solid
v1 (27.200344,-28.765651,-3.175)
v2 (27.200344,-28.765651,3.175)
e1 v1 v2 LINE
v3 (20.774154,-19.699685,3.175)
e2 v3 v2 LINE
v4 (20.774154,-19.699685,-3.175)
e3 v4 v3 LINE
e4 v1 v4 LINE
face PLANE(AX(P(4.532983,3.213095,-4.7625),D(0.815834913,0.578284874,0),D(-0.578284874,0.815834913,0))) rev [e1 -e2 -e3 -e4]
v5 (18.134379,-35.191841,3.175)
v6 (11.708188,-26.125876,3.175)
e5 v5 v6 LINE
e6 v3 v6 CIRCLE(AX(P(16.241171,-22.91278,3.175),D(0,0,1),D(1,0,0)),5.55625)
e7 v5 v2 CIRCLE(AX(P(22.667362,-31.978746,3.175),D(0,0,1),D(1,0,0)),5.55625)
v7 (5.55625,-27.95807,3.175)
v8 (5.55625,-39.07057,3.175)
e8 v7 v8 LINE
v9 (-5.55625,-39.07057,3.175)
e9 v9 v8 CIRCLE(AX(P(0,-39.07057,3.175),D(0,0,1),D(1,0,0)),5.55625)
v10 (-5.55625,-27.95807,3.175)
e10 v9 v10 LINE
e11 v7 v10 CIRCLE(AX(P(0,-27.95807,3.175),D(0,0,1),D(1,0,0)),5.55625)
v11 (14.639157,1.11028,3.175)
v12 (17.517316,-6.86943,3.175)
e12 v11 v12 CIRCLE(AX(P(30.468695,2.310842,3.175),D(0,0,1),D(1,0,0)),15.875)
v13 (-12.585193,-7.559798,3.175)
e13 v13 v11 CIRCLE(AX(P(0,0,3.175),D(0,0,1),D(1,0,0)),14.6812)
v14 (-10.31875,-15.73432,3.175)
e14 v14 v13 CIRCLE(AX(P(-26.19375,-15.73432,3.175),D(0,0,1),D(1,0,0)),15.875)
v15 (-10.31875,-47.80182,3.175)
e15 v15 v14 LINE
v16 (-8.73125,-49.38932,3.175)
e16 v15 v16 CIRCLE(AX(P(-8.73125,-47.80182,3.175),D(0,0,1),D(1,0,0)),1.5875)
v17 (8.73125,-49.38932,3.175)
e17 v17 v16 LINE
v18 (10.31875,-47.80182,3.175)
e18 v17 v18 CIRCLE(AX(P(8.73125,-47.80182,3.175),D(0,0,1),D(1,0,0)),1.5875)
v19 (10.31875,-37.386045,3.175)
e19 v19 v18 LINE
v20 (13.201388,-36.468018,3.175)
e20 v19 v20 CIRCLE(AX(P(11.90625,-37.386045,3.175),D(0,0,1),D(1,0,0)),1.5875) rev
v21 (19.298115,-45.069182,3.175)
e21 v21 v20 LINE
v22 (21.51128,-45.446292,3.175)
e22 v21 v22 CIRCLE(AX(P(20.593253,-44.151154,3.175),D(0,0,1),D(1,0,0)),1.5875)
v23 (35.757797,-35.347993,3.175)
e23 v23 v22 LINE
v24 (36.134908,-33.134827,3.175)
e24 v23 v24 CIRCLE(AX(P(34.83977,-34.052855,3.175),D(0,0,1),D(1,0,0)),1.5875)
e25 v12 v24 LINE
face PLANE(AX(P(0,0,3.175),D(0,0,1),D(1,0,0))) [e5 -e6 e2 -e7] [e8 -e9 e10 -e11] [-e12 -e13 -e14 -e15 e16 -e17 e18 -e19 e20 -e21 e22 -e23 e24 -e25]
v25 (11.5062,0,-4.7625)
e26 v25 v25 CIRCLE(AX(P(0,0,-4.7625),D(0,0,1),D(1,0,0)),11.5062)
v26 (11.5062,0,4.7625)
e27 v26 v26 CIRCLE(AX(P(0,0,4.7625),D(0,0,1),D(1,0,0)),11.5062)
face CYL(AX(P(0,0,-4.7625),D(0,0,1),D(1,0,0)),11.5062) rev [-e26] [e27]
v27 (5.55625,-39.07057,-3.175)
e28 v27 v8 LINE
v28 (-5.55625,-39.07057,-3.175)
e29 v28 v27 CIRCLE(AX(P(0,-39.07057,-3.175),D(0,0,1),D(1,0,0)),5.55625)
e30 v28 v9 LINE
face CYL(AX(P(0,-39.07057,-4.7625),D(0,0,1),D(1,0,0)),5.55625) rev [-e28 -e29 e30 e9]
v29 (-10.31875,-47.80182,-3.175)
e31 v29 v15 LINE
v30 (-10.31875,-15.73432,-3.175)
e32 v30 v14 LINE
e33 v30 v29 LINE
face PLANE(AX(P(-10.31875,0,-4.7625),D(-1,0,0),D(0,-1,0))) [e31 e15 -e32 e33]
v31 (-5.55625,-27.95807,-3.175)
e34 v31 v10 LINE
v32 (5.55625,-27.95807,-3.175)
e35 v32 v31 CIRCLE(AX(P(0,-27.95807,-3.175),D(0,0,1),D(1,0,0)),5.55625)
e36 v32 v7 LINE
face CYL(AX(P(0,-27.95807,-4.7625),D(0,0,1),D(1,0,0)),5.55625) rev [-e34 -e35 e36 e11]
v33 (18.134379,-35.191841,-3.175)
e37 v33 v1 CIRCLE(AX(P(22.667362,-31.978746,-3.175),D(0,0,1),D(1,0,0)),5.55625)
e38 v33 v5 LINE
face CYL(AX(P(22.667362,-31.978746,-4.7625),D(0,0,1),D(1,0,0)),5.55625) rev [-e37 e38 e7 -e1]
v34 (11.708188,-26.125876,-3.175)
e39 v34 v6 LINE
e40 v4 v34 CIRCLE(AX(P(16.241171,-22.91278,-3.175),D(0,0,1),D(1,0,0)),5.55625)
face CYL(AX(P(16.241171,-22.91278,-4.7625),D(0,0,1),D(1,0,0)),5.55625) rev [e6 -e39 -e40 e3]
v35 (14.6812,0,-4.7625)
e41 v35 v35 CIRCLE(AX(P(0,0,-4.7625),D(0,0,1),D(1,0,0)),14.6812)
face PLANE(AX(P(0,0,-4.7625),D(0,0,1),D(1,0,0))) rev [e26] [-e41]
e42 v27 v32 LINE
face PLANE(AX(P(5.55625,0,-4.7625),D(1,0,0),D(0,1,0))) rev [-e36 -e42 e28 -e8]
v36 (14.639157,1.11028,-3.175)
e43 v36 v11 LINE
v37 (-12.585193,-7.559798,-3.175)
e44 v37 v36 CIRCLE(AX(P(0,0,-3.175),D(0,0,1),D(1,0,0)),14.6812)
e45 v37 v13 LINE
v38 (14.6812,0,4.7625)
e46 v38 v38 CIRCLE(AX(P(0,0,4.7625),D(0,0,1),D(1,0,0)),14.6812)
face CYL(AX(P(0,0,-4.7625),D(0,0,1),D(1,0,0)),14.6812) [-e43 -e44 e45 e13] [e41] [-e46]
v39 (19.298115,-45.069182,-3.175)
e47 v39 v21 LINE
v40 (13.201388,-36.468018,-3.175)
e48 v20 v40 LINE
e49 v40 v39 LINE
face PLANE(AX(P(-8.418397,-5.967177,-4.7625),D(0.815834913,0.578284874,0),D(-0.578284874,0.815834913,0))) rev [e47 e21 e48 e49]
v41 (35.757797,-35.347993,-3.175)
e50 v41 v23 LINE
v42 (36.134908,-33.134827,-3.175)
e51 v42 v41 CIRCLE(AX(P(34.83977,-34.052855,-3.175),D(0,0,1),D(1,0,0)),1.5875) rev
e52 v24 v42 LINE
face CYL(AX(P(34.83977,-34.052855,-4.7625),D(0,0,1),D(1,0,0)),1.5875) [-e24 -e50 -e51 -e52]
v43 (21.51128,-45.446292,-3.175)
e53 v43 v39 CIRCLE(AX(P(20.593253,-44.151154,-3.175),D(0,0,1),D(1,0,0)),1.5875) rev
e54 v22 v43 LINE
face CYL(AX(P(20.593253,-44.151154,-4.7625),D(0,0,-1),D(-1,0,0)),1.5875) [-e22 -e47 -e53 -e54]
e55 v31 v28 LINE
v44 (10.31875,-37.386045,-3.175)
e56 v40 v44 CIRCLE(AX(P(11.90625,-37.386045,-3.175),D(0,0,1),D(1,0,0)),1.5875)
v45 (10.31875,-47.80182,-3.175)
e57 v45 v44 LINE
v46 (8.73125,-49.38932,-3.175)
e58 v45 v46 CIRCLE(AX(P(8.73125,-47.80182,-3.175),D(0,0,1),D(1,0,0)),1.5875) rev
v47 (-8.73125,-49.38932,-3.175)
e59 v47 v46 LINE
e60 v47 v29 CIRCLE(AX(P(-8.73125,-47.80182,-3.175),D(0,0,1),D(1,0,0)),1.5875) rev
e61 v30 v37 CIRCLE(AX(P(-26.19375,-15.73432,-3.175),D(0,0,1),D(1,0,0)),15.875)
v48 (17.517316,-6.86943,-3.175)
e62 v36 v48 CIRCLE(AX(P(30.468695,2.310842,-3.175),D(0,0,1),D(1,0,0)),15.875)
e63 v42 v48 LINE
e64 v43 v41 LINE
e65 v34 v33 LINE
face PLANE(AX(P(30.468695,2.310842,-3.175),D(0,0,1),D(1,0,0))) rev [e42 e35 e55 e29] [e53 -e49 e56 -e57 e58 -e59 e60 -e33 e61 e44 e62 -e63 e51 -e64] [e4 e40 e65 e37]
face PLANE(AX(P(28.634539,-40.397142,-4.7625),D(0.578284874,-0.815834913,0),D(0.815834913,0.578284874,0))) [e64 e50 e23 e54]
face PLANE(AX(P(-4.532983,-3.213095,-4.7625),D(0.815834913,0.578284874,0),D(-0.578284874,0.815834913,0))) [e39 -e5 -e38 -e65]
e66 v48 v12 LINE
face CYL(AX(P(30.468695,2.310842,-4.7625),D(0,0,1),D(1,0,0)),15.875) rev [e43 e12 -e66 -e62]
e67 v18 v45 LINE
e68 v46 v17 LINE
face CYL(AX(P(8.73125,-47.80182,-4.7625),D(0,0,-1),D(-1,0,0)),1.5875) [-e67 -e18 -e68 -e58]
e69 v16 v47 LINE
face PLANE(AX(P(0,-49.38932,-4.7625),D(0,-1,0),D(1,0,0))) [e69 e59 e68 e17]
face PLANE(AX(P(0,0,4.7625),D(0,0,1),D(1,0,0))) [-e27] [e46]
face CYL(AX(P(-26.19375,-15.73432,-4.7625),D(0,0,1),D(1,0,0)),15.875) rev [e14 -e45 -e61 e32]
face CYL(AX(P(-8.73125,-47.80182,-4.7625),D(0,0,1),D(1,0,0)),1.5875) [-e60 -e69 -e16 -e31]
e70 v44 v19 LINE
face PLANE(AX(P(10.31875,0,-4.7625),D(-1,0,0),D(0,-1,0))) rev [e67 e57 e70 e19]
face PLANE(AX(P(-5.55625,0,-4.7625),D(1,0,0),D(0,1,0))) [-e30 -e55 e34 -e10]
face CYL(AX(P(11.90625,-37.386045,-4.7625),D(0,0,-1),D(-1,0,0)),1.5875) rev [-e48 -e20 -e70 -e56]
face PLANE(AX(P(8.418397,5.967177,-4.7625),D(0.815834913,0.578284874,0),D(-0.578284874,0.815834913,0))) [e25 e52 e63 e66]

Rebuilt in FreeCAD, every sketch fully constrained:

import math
import FreeCAD as App
import Part
import Sketcher
from FreeCAD import Vector
Q = App.Units.Quantity


def edges_at(feature, points):
    """Names of the edges that pass closest to the given points."""
    edges = feature.Shape.Edges
    near = lambda p: min(range(len(edges)), key=lambda i: edges[i].distToShape(Part.Vertex(*p))[0])
    return sorted({f"Edge{near(p) + 1}" for p in points})

doc = App.newDocument("Part")
body = doc.addObject("PartDesign::Body", "Body")

sketch1 = doc.addObject("Sketcher::SketchObject", "Sketch")
body.addObject(sketch1)
sketch1.AttachmentSupport = (doc.XY_Plane, [""])
sketch1.MapMode = "FlatFace"
sketch1.addGeometry(Part.ArcOfCircle(Part.Circle(Vector(0, 0, 0), Vector(0, 0, 1), 15), math.radians(4), math.radians(211)), False)
sketch1.addGeometry(Part.ArcOfCircle(Part.Circle(Vector(-26, -16, 0), Vector(0, 0, 1), 16), math.radians(0), math.radians(31)), False)
sketch1.addGeometry(Part.LineSegment(Vector(-10, -16, 0), Vector(-10, -49, 0)), False)
sketch1.addGeometry(Part.LineSegment(Vector(-10, -49, 0), Vector(10, -49, 0)), False)
sketch1.addGeometry(Part.LineSegment(Vector(10, -49, 0), Vector(10, -32, 0)), False)
sketch1.addGeometry(Part.LineSegment(Vector(10, -32, 0), Vector(20, -46, 0)), False)
sketch1.addGeometry(Part.LineSegment(Vector(20, -46, 0), Vector(37, -34, 0)), False)
sketch1.addGeometry(Part.LineSegment(Vector(37, -34, 0), Vector(18, -7, 0)), False)
sketch1.addGeometry(Part.ArcOfCircle(Part.Circle(Vector(30, 2, 0), Vector(0, 0, 1), 16), math.radians(-176), math.radians(-145)), False)
sketch1.addGeometry(Part.ArcOfCircle(Part.Circle(Vector(0, -28, 0), Vector(0, 0, 1), 6), math.radians(0), math.radians(180)), False)
sketch1.addGeometry(Part.LineSegment(Vector(6, -28, 0), Vector(6, -39, 0)), False)
sketch1.addGeometry(Part.ArcOfCircle(Part.Circle(Vector(0, -39, 0), Vector(0, 0, 1), 6), math.radians(180), math.radians(360)), False)
sketch1.addGeometry(Part.LineSegment(Vector(-6, -39, 0), Vector(-6, -28, 0)), False)
sketch1.addGeometry(Part.ArcOfCircle(Part.Circle(Vector(16, -23, 0), Vector(0, 0, 1), 6), math.radians(35), math.radians(215)), False)
sketch1.addGeometry(Part.LineSegment(Vector(21, -20, 0), Vector(27, -29, 0)), False)
sketch1.addGeometry(Part.ArcOfCircle(Part.Circle(Vector(23, -32, 0), Vector(0, 0, 1), 6), math.radians(-145), math.radians(35)), False)
sketch1.addGeometry(Part.LineSegment(Vector(18, -35, 0), Vector(12, -26, 0)), False)
sketch1.addGeometry(Part.Circle(Vector(0, 0, 0), Vector(0, 0, 1), 12), False)
sketch1.addConstraint(Sketcher.Constraint("Tangent", 0, 2, 1, 2))
sketch1.addConstraint(Sketcher.Constraint("Tangent", 1, 1, 2, 1))
sketch1.addConstraint(Sketcher.Constraint("Coincident", 2, 2, 3, 1))
sketch1.addConstraint(Sketcher.Constraint("Coincident", 3, 2, 4, 1))
sketch1.addConstraint(Sketcher.Constraint("Coincident", 4, 2, 5, 1))
sketch1.addConstraint(Sketcher.Constraint("Coincident", 5, 2, 6, 1))
sketch1.addConstraint(Sketcher.Constraint("Coincident", 6, 2, 7, 1))
sketch1.addConstraint(Sketcher.Constraint("Tangent", 7, 2, 8, 2))
sketch1.addConstraint(Sketcher.Constraint("Tangent", 8, 1, 0, 1))
sketch1.addConstraint(Sketcher.Constraint("Tangent", 9, 1, 10, 1))
sketch1.addConstraint(Sketcher.Constraint("Tangent", 10, 2, 11, 2))
sketch1.addConstraint(Sketcher.Constraint("Tangent", 11, 1, 12, 1))
sketch1.addConstraint(Sketcher.Constraint("Tangent", 12, 2, 9, 2))
sketch1.addConstraint(Sketcher.Constraint("Tangent", 13, 1, 14, 1))
sketch1.addConstraint(Sketcher.Constraint("Tangent", 14, 2, 15, 2))
sketch1.addConstraint(Sketcher.Constraint("Tangent", 15, 1, 16, 1))
sketch1.addConstraint(Sketcher.Constraint("Tangent", 16, 2, 13, 2))
sketch1.addConstraint(Sketcher.Constraint("Vertical", 2))
sketch1.addConstraint(Sketcher.Constraint("Horizontal", 3))
sketch1.addConstraint(Sketcher.Constraint("Vertical", 4))
sketch1.addConstraint(Sketcher.Constraint("Vertical", 10))
sketch1.addConstraint(Sketcher.Constraint("Vertical", 12))
sketch1.addConstraint(Sketcher.Constraint("Coincident", 0, 3, -1, 1))
sketch1.addConstraint(Sketcher.Constraint("Coincident", 17, 3, -1, 1))
sketch1.addConstraint(Sketcher.Constraint("Equal", 1, 8))
sketch1.addConstraint(Sketcher.Constraint("Equal", 11, 13))
sketch1.addConstraint(Sketcher.Constraint("Equal", 13, 15))
sketch1.addConstraint(Sketcher.Constraint("PointOnObject", 9, 3, -2))
sketch1.addConstraint(Sketcher.Constraint("Perpendicular", 5, 6))
sketch1.addConstraint(Sketcher.Constraint("Perpendicular", 6, 7))
sketch1.addConstraint(Sketcher.Constraint("Parallel", 7, 14))
sketch1.addConstraint(Sketcher.Constraint("Diameter", 17, Q("0.906 in")))
sketch1.addConstraint(Sketcher.Constraint("Radius", 0, Q("0.578 in")))
sketch1.addConstraint(Sketcher.Constraint("Radius", 1, Q("0.625 in")))
sketch1.addConstraint(Sketcher.Constraint("Radius", 9, Q("0.21875 in")))
sketch1.addConstraint(Sketcher.Constraint("Distance", 7, Q("1.33 in")))
sketch1.addConstraint(Sketcher.Constraint("DistanceX", 3, 1, 3, 2, Q("0.8125 in")))
sketch1.addConstraint(Sketcher.Constraint("DistanceY", 2, 2, 2, 1, Q("1.325 in")))
sketch1.addConstraint(Sketcher.Constraint("DistanceY", 10, 2, 10, 1, Q("0.4375 in")))
sketch1.addConstraint(Sketcher.Constraint("Angle", 5, Q("-54.67 deg")))
sketch1.addConstraint(Sketcher.Constraint("Distance", 6, Q("0.8125 in")))
sketch1.addConstraint(Sketcher.Constraint("Distance", 14, Q("0.4375 in")))
sketch1.addConstraint(Sketcher.Constraint("DistanceX", 1, 3, -1, 1, Q("1.03125 in")))
sketch1.addConstraint(Sketcher.Constraint("DistanceY", 2, 2, 11, 3, Q("0.40625 in")))
sketch1.addConstraint(Sketcher.Constraint("DistanceY", 4, 1, 4, 2, 16.988081))
sketch1.addConstraint(Sketcher.Constraint("DistanceX", -1, 1, 13, 3, 16.241171))
sketch1.addConstraint(Sketcher.Constraint("DistanceY", 13, 3, -1, 1, 22.91278))
pad1 = doc.addObject("PartDesign::Pad", "Pad")
body.addObject(pad1)
pad1.Profile = sketch1
pad1.Type = "TwoLengths"
pad1.Length = Q("0.1875 in")
pad1.Length2 = Q("0.1875 in")

sketch2 = doc.addObject("Sketcher::SketchObject", "Sketch001")
body.addObject(sketch2)
sketch2.AttachmentSupport = (doc.XY_Plane, [""])
sketch2.MapMode = "FlatFace"
sketch2.AttachmentOffset = App.Placement(Vector(0, 0, -0.1875 * 25.4), App.Rotation())
sketch2.addGeometry(Part.LineSegment(Vector(-10, -16, 0), Vector(-10, -49, 0)), False)
sketch2.addGeometry(Part.LineSegment(Vector(-10, -49, 0), Vector(10, -49, 0)), False)
sketch2.addGeometry(Part.LineSegment(Vector(10, -49, 0), Vector(10, -32, 0)), False)
sketch2.addGeometry(Part.LineSegment(Vector(10, -32, 0), Vector(20, -46, 0)), False)
sketch2.addGeometry(Part.LineSegment(Vector(20, -46, 0), Vector(37, -34, 0)), False)
sketch2.addGeometry(Part.LineSegment(Vector(37, -34, 0), Vector(18, -7, 0)), False)
sketch2.addGeometry(Part.ArcOfCircle(Part.Circle(Vector(30, 2, 0), Vector(0, 0, 1), 16), math.radians(-176), math.radians(-145)), False)
sketch2.addGeometry(Part.ArcOfCircle(Part.Circle(Vector(0, 0, 0), Vector(0, 0, 1), 15), math.radians(-149), math.radians(4)), False)
sketch2.addGeometry(Part.ArcOfCircle(Part.Circle(Vector(-26, -16, 0), Vector(0, 0, 1), 16), math.radians(0), math.radians(31)), False)
sketch2.addGeometry(Part.ArcOfCircle(Part.Circle(Vector(0, -39, 0), Vector(0, 0, 1), 6), math.radians(180), math.radians(360)), False)
sketch2.addGeometry(Part.LineSegment(Vector(-6, -39, 0), Vector(-6, -28, 0)), False)
sketch2.addGeometry(Part.ArcOfCircle(Part.Circle(Vector(0, -28, 0), Vector(0, 0, 1), 6), math.radians(0), math.radians(180)), False)
sketch2.addGeometry(Part.LineSegment(Vector(6, -28, 0), Vector(6, -39, 0)), False)
sketch2.addGeometry(Part.ArcOfCircle(Part.Circle(Vector(23, -32, 0), Vector(0, 0, 1), 6), math.radians(-145), math.radians(35)), False)
sketch2.addGeometry(Part.LineSegment(Vector(18, -35, 0), Vector(12, -26, 0)), False)
sketch2.addGeometry(Part.ArcOfCircle(Part.Circle(Vector(16, -23, 0), Vector(0, 0, 1), 6), math.radians(35), math.radians(215)), False)
sketch2.addGeometry(Part.LineSegment(Vector(21, -20, 0), Vector(27, -29, 0)), False)
sketch2.addConstraint(Sketcher.Constraint("Coincident", 0, 2, 1, 1))
sketch2.addConstraint(Sketcher.Constraint("Coincident", 1, 2, 2, 1))
sketch2.addConstraint(Sketcher.Constraint("Coincident", 2, 2, 3, 1))
sketch2.addConstraint(Sketcher.Constraint("Coincident", 3, 2, 4, 1))
sketch2.addConstraint(Sketcher.Constraint("Coincident", 4, 2, 5, 1))
sketch2.addConstraint(Sketcher.Constraint("Tangent", 5, 2, 6, 2))
sketch2.addConstraint(Sketcher.Constraint("Tangent", 6, 1, 7, 2))
sketch2.addConstraint(Sketcher.Constraint("Tangent", 7, 1, 8, 2))
sketch2.addConstraint(Sketcher.Constraint("Tangent", 8, 1, 0, 1))
sketch2.addConstraint(Sketcher.Constraint("Tangent", 9, 1, 10, 1))
sketch2.addConstraint(Sketcher.Constraint("Tangent", 10, 2, 11, 2))
sketch2.addConstraint(Sketcher.Constraint("Tangent", 11, 1, 12, 1))
sketch2.addConstraint(Sketcher.Constraint("Tangent", 12, 2, 9, 2))
sketch2.addConstraint(Sketcher.Constraint("Tangent", 13, 1, 14, 1))
sketch2.addConstraint(Sketcher.Constraint("Tangent", 14, 2, 15, 2))
sketch2.addConstraint(Sketcher.Constraint("Tangent", 15, 1, 16, 1))
sketch2.addConstraint(Sketcher.Constraint("Tangent", 16, 2, 13, 2))
sketch2.addConstraint(Sketcher.Constraint("Vertical", 0))
sketch2.addConstraint(Sketcher.Constraint("Horizontal", 1))
sketch2.addConstraint(Sketcher.Constraint("Vertical", 2))
sketch2.addConstraint(Sketcher.Constraint("Vertical", 10))
sketch2.addConstraint(Sketcher.Constraint("Vertical", 12))
sketch2.addConstraint(Sketcher.Constraint("Coincident", 7, 3, -1, 1))
sketch2.addConstraint(Sketcher.Constraint("Equal", 6, 8))
sketch2.addConstraint(Sketcher.Constraint("Equal", 11, 13))
sketch2.addConstraint(Sketcher.Constraint("Equal", 13, 15))
sketch2.addConstraint(Sketcher.Constraint("PointOnObject", 9, 3, -2))
sketch2.addConstraint(Sketcher.Constraint("Perpendicular", 3, 4))
sketch2.addConstraint(Sketcher.Constraint("Perpendicular", 4, 5))
sketch2.addConstraint(Sketcher.Constraint("Parallel", 5, 14))
sketch2.addConstraint(Sketcher.Constraint("Radius", 6, Q("0.625 in")))
sketch2.addConstraint(Sketcher.Constraint("Radius", 7, Q("0.578 in")))
sketch2.addConstraint(Sketcher.Constraint("Radius", 9, Q("0.21875 in")))
sketch2.addConstraint(Sketcher.Constraint("Distance", 5, Q("1.33 in")))
sketch2.addConstraint(Sketcher.Constraint("DistanceX", 1, 1, 1, 2, Q("0.8125 in")))
sketch2.addConstraint(Sketcher.Constraint("DistanceY", 0, 2, 0, 1, Q("1.325 in")))
sketch2.addConstraint(Sketcher.Constraint("DistanceY", 10, 1, 10, 2, Q("0.4375 in")))
sketch2.addConstraint(Sketcher.Constraint("Angle", 3, Q("-54.67 deg")))
sketch2.addConstraint(Sketcher.Constraint("Distance", 4, Q("0.8125 in")))
sketch2.addConstraint(Sketcher.Constraint("Distance", 14, Q("0.4375 in")))
sketch2.addConstraint(Sketcher.Constraint("DistanceX", 8, 3, -1, 1, Q("1.03125 in")))
sketch2.addConstraint(Sketcher.Constraint("DistanceY", 0, 2, 9, 3, Q("0.40625 in")))
sketch2.addConstraint(Sketcher.Constraint("DistanceY", 2, 1, 2, 2, 16.988081))
sketch2.addConstraint(Sketcher.Constraint("DistanceX", -1, 1, 13, 3, 22.667362))
sketch2.addConstraint(Sketcher.Constraint("DistanceY", 15, 3, -1, 1, 22.91278))
pocket1 = doc.addObject("PartDesign::Pocket", "Pocket")
body.addObject(pocket1)
pocket1.Profile = sketch2
pocket1.Length = Q("0.0625 in")
pocket1.Reversed = True

sketch3 = doc.addObject("Sketcher::SketchObject", "Sketch002")
body.addObject(sketch3)
sketch3.AttachmentSupport = (doc.XY_Plane, [""])
sketch3.MapMode = "FlatFace"
sketch3.AttachmentOffset = App.Placement(Vector(0, 0, 0.125 * 25.4), App.Rotation())
sketch3.addGeometry(Part.LineSegment(Vector(-10, -16, 0), Vector(-10, -49, 0)), False)
sketch3.addGeometry(Part.LineSegment(Vector(-10, -49, 0), Vector(10, -49, 0)), False)
sketch3.addGeometry(Part.LineSegment(Vector(10, -49, 0), Vector(10, -32, 0)), False)
sketch3.addGeometry(Part.LineSegment(Vector(10, -32, 0), Vector(20, -46, 0)), False)
sketch3.addGeometry(Part.LineSegment(Vector(20, -46, 0), Vector(37, -34, 0)), False)
sketch3.addGeometry(Part.LineSegment(Vector(37, -34, 0), Vector(18, -7, 0)), False)
sketch3.addGeometry(Part.ArcOfCircle(Part.Circle(Vector(30, 2, 0), Vector(0, 0, 1), 16), math.radians(-176), math.radians(-145)), False)
sketch3.addGeometry(Part.ArcOfCircle(Part.Circle(Vector(0, 0, 0), Vector(0, 0, 1), 15), math.radians(-149), math.radians(4)), False)
sketch3.addGeometry(Part.ArcOfCircle(Part.Circle(Vector(-26, -16, 0), Vector(0, 0, 1), 16), math.radians(0), math.radians(31)), False)
sketch3.addGeometry(Part.ArcOfCircle(Part.Circle(Vector(0, -39, 0), Vector(0, 0, 1), 6), math.radians(180), math.radians(360)), False)
sketch3.addGeometry(Part.LineSegment(Vector(-6, -39, 0), Vector(-6, -28, 0)), False)
sketch3.addGeometry(Part.ArcOfCircle(Part.Circle(Vector(0, -28, 0), Vector(0, 0, 1), 6), math.radians(0), math.radians(180)), False)
sketch3.addGeometry(Part.LineSegment(Vector(6, -28, 0), Vector(6, -39, 0)), False)
sketch3.addGeometry(Part.ArcOfCircle(Part.Circle(Vector(23, -32, 0), Vector(0, 0, 1), 6), math.radians(-145), math.radians(35)), False)
sketch3.addGeometry(Part.LineSegment(Vector(18, -35, 0), Vector(12, -26, 0)), False)
sketch3.addGeometry(Part.ArcOfCircle(Part.Circle(Vector(16, -23, 0), Vector(0, 0, 1), 6), math.radians(35), math.radians(215)), False)
sketch3.addGeometry(Part.LineSegment(Vector(21, -20, 0), Vector(27, -29, 0)), False)
sketch3.addConstraint(Sketcher.Constraint("Coincident", 0, 2, 1, 1))
sketch3.addConstraint(Sketcher.Constraint("Coincident", 1, 2, 2, 1))
sketch3.addConstraint(Sketcher.Constraint("Coincident", 2, 2, 3, 1))
sketch3.addConstraint(Sketcher.Constraint("Coincident", 3, 2, 4, 1))
sketch3.addConstraint(Sketcher.Constraint("Coincident", 4, 2, 5, 1))
sketch3.addConstraint(Sketcher.Constraint("Tangent", 5, 2, 6, 2))
sketch3.addConstraint(Sketcher.Constraint("Tangent", 6, 1, 7, 2))
sketch3.addConstraint(Sketcher.Constraint("Tangent", 7, 1, 8, 2))
sketch3.addConstraint(Sketcher.Constraint("Tangent", 8, 1, 0, 1))
sketch3.addConstraint(Sketcher.Constraint("Tangent", 9, 1, 10, 1))
sketch3.addConstraint(Sketcher.Constraint("Tangent", 10, 2, 11, 2))
sketch3.addConstraint(Sketcher.Constraint("Tangent", 11, 1, 12, 1))
sketch3.addConstraint(Sketcher.Constraint("Tangent", 12, 2, 9, 2))
sketch3.addConstraint(Sketcher.Constraint("Tangent", 13, 1, 14, 1))
sketch3.addConstraint(Sketcher.Constraint("Tangent", 14, 2, 15, 2))
sketch3.addConstraint(Sketcher.Constraint("Tangent", 15, 1, 16, 1))
sketch3.addConstraint(Sketcher.Constraint("Tangent", 16, 2, 13, 2))
sketch3.addConstraint(Sketcher.Constraint("Vertical", 0))
sketch3.addConstraint(Sketcher.Constraint("Horizontal", 1))
sketch3.addConstraint(Sketcher.Constraint("Vertical", 2))
sketch3.addConstraint(Sketcher.Constraint("Vertical", 10))
sketch3.addConstraint(Sketcher.Constraint("Vertical", 12))
sketch3.addConstraint(Sketcher.Constraint("Coincident", 7, 3, -1, 1))
sketch3.addConstraint(Sketcher.Constraint("Equal", 6, 8))
sketch3.addConstraint(Sketcher.Constraint("Equal", 11, 13))
sketch3.addConstraint(Sketcher.Constraint("Equal", 13, 15))
sketch3.addConstraint(Sketcher.Constraint("PointOnObject", 9, 3, -2))
sketch3.addConstraint(Sketcher.Constraint("Perpendicular", 3, 4))
sketch3.addConstraint(Sketcher.Constraint("Perpendicular", 4, 5))
sketch3.addConstraint(Sketcher.Constraint("Parallel", 5, 14))
sketch3.addConstraint(Sketcher.Constraint("Radius", 6, Q("0.625 in")))
sketch3.addConstraint(Sketcher.Constraint("Radius", 7, Q("0.578 in")))
sketch3.addConstraint(Sketcher.Constraint("Radius", 9, Q("0.21875 in")))
sketch3.addConstraint(Sketcher.Constraint("Distance", 5, Q("1.33 in")))
sketch3.addConstraint(Sketcher.Constraint("DistanceX", 1, 1, 1, 2, Q("0.8125 in")))
sketch3.addConstraint(Sketcher.Constraint("DistanceY", 0, 2, 0, 1, Q("1.325 in")))
sketch3.addConstraint(Sketcher.Constraint("DistanceY", 10, 1, 10, 2, Q("0.4375 in")))
sketch3.addConstraint(Sketcher.Constraint("Angle", 3, Q("-54.67 deg")))
sketch3.addConstraint(Sketcher.Constraint("Distance", 4, Q("0.8125 in")))
sketch3.addConstraint(Sketcher.Constraint("Distance", 14, Q("0.4375 in")))
sketch3.addConstraint(Sketcher.Constraint("DistanceX", 8, 3, -1, 1, Q("1.03125 in")))
sketch3.addConstraint(Sketcher.Constraint("DistanceY", 0, 2, 9, 3, Q("0.40625 in")))
sketch3.addConstraint(Sketcher.Constraint("DistanceY", 2, 1, 2, 2, 16.988081))
sketch3.addConstraint(Sketcher.Constraint("DistanceX", -1, 1, 13, 3, 22.667362))
sketch3.addConstraint(Sketcher.Constraint("DistanceY", 15, 3, -1, 1, 22.91278))
pocket2 = doc.addObject("PartDesign::Pocket", "Pocket001")
body.addObject(pocket2)
pocket2.Profile = sketch3
pocket2.Length = Q("0.0625 in")
pocket2.Reversed = True
doc.recompute()

fillet = doc.addObject("PartDesign::Fillet", "Fillet")
body.addObject(fillet)
fillet.Base = (pocket2, edges_at(pocket2, [
    (-10.319, -49.389, 0),
    (10.319, -49.389, 0),
    (10.319, -32.401, 0),
    (20.216, -46.364, 0),
    (37.053, -34.43, 0),
]))
fillet.Radius = Q("0.0625 in")

doc.recompute()
